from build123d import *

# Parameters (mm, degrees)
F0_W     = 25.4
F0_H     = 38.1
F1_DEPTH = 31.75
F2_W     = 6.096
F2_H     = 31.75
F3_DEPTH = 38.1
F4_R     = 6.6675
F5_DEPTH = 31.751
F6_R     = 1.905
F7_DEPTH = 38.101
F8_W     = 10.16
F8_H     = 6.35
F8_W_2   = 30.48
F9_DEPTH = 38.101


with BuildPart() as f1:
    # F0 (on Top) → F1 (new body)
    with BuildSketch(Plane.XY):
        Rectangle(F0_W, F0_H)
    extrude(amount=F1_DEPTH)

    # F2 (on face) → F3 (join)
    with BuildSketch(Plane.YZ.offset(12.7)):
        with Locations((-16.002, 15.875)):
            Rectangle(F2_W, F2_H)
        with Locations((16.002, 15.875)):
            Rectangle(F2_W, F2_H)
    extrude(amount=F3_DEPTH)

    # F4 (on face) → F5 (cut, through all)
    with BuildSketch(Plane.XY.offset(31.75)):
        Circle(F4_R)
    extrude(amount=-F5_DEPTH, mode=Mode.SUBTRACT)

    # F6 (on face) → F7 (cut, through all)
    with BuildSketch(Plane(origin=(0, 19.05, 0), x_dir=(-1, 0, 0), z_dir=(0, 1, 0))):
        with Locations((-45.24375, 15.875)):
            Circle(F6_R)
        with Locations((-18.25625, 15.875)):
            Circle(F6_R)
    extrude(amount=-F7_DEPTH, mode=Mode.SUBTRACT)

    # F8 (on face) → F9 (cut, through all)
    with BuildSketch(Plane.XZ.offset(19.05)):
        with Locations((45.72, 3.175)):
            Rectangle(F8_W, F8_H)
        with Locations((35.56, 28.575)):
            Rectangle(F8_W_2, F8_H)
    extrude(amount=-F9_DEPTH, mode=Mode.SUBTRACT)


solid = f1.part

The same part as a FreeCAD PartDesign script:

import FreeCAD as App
import Part
import Sketcher
from FreeCAD import Vector
Q = App.Units.Quantity

doc = App.newDocument("Part")
body = doc.addObject("PartDesign::Body", "Body")

sketch1 = body.newObject("Sketcher::SketchObject", "Sketch")
sketch1.AttachmentSupport = (doc.getObject("XY_Plane"), [""])
sketch1.MapMode = "FlatFace"
sketch1.addGeometry([
    Part.LineSegment(Vector(-13, 19, 0), Vector(-13, -19, 0)),
    Part.LineSegment(Vector(-13, -19, 0), Vector(13, -19, 0)),
    Part.LineSegment(Vector(13, -19, 0), Vector(13, 19, 0)),
    Part.LineSegment(Vector(13, 19, 0), Vector(-13, 19, 0)),
], False)
sketch1.addConstraint([
    Sketcher.Constraint("Coincident", 0, 2, 1, 1),
    Sketcher.Constraint("Coincident", 1, 2, 2, 1),
    Sketcher.Constraint("Coincident", 2, 2, 3, 1),
    Sketcher.Constraint("Coincident", 3, 2, 0, 1),
    Sketcher.Constraint("Vertical", 0),
    Sketcher.Constraint("Horizontal", 1),
    Sketcher.Constraint("Vertical", 2),
    Sketcher.Constraint("Horizontal", 3),
    Sketcher.Constraint("Symmetric", 0, 2, 2, 2, -1, 1),
    Sketcher.Constraint("DistanceX", 1, 1, 1, 2, Q("1 in")),
    Sketcher.Constraint("DistanceY", 0, 2, 0, 1, Q("1.5 in")),
])
pad1 = body.newObject("PartDesign::Pad", "Pad")
pad1.Profile = sketch1
pad1.Length = Q("1.25 in")

sketch2 = body.newObject("Sketcher::SketchObject", "Sketch001")
sketch2.AttachmentSupport = (doc.getObject("YZ_Plane"), [""])
sketch2.MapMode = "FlatFace"
sketch2.AttachmentOffset = App.Placement(Vector(0, 0, 0.5 * 25.4), App.Rotation())
sketch2.addGeometry([
    Part.LineSegment(Vector(-19, 32, 0), Vector(-19, 0, 0)),
    Part.LineSegment(Vector(-19, 0, 0), Vector(-13, 0, 0)),
    Part.LineSegment(Vector(-13, 0, 0), Vector(-13, 32, 0)),
    Part.LineSegment(Vector(-13, 32, 0), Vector(-19, 32, 0)),
    Part.LineSegment(Vector(13, 32, 0), Vector(13, 0, 0)),
    Part.LineSegment(Vector(13, 0, 0), Vector(19, 0, 0)),
    Part.LineSegment(Vector(19, 0, 0), Vector(19, 32, 0)),
    Part.LineSegment(Vector(19, 32, 0), Vector(13, 32, 0)),
], False)
sketch2.addConstraint([
    Sketcher.Constraint("Coincident", 0, 2, 1, 1),
    Sketcher.Constraint("Coincident", 1, 2, 2, 1),
    Sketcher.Constraint("Coincident", 2, 2, 3, 1),
    Sketcher.Constraint("Coincident", 3, 2, 0, 1),
    Sketcher.Constraint("Coincident", 4, 2, 5, 1),
    Sketcher.Constraint("Coincident", 5, 2, 6, 1),
    Sketcher.Constraint("Coincident", 6, 2, 7, 1),
    Sketcher.Constraint("Coincident", 7, 2, 4, 1),
    Sketcher.Constraint("Vertical", 0),
    Sketcher.Constraint("Horizontal", 1),
    Sketcher.Constraint("Vertical", 2),
    Sketcher.Constraint("Horizontal", 3),
    Sketcher.Constraint("Vertical", 4),
    Sketcher.Constraint("Horizontal", 5),
    Sketcher.Constraint("Vertical", 6),
    Sketcher.Constraint("Horizontal", 7),
    Sketcher.Constraint("Symmetric", 1, 2, 4, 2, -1, 1),
    Sketcher.Constraint("Symmetric", 0, 2, 5, 2, -2),
    Sketcher.Constraint("Horizontal", 3, 2, 6, 2),
    Sketcher.Constraint("DistanceX", 1, 1, 1, 2, Q("0.24 in")),
    Sketcher.Constraint("DistanceY", 0, 2, 0, 1, Q("1.25 in")),
    Sketcher.Constraint("DistanceX", 0, 2, 5, 2, Q("1.5 in")),
])
pad2 = body.newObject("PartDesign::Pad", "Pad001")
pad2.Profile = sketch2
pad2.Length = Q("1.5 in")

sketch3 = body.newObject("Sketcher::SketchObject", "Sketch002")
sketch3.AttachmentSupport = (doc.getObject("XY_Plane"), [""])
sketch3.MapMode = "FlatFace"
sketch3.AttachmentOffset = App.Placement(Vector(0, 0, 1.25 * 25.4), App.Rotation())
sketch3.addGeometry(Part.Circle(Vector(0, 0, 0), Vector(0, 0, 1), 7), False)
sketch3.addConstraint([
    Sketcher.Constraint("Coincident", 0, 3, -1, 1),
    Sketcher.Constraint("Diameter", 0, Q("0.525 in")),
])
pocket1 = body.newObject("PartDesign::Pocket", "Pocket")
pocket1.Profile = sketch3
pocket1.Type = "ThroughAll"

sketch4 = body.newObject("Sketcher::SketchObject", "Sketch003")
sketch4.AttachmentSupport = (doc.getObject("XZ_Plane"), [""])
sketch4.MapMode = "FlatFace"
sketch4.AttachmentOffset = App.Placement(Vector(0, 0, -0.75 * 25.4), App.Rotation())
sketch4.addGeometry([
    Part.Circle(Vector(45.2, 15.9, 0), Vector(0, 0, 1), 1.9),
    Part.Circle(Vector(18.3, 15.9, 0), Vector(0, 0, 1), 1.9),
], False)
sketch4.addConstraint([
    Sketcher.Constraint("Equal", 0, 1),
    Sketcher.Constraint("Horizontal", 0, 3, 1, 3),
    Sketcher.Constraint("Diameter", 0, Q("0.15 in")),
    Sketcher.Constraint("DistanceX", -1, 1, 0, 3, Q("1.78125 in")),
    Sketcher.Constraint("DistanceY", -1, 1, 0, 3, Q("0.625 in")),
    Sketcher.Constraint("DistanceX", -1, 1, 1, 3, Q("0.71875 in")),
])
pocket2 = body.newObject("PartDesign::Pocket", "Pocket001")
pocket2.Profile = sketch4
pocket2.Type = "ThroughAll"
pocket2.Reversed = True

sketch5 = body.newObject("Sketcher::SketchObject", "Sketch004")
sketch5.AttachmentSupport = (doc.getObject("XZ_Plane"), [""])
sketch5.MapMode = "FlatFace"
sketch5.AttachmentOffset = App.Placement(Vector(0, 0, 0.75 * 25.4), App.Rotation())
sketch5.addGeometry([
    Part.LineSegment(Vector(41, 6, 0), Vector(41, 0, 0)),
    Part.LineSegment(Vector(41, 0, 0), Vector(51, 0, 0)),
    Part.LineSegment(Vector(51, 0, 0), Vector(51, 6, 0)),
    Part.LineSegment(Vector(51, 6, 0), Vector(41, 6, 0)),
    Part.LineSegment(Vector(20, 32, 0), Vector(20, 25, 0)),
    Part.LineSegment(Vector(20, 25, 0), Vector(51, 25, 0)),
    Part.LineSegment(Vector(51, 25, 0), Vector(51, 32, 0)),
    Part.LineSegment(Vector(51, 32, 0), Vector(20, 32, 0)),
], False)
sketch5.addConstraint([
    Sketcher.Constraint("Coincident", 0, 2, 1, 1),
    Sketcher.Constraint("Coincident", 1, 2, 2, 1),
    Sketcher.Constraint("Coincident", 2, 2, 3, 1),
    Sketcher.Constraint("Coincident", 3, 2, 0, 1),
    Sketcher.Constraint("Coincident", 4, 2, 5, 1),
    Sketcher.Constraint("Coincident", 5, 2, 6, 1),
    Sketcher.Constraint("Coincident", 6, 2, 7, 1),
    Sketcher.Constraint("Coincident", 7, 2, 4, 1),
    Sketcher.Constraint("Vertical", 0),
    Sketcher.Constraint("Horizontal", 1),
    Sketcher.Constraint("Vertical", 2),
    Sketcher.Constraint("Horizontal", 3),
    Sketcher.Constraint("Vertical", 4),
    Sketcher.Constraint("Horizontal", 5),
    Sketcher.Constraint("Vertical", 6),
    Sketcher.Constraint("Horizontal", 7),
    Sketcher.Constraint("PointOnObject", 0, 2, -1),
    Sketcher.Constraint("Vertical", 2, 2, 5, 2),
    Sketcher.Constraint("Equal", 2, 4),
    Sketcher.Constraint("DistanceX", 1, 1, 1, 2, Q("0.4 in")),
    Sketcher.Constraint("DistanceX", 5, 1, 5, 2, Q("1.2 in")),
    Sketcher.Constraint("DistanceX", -1, 1, 1, 2, Q("2 in")),
    Sketcher.Constraint("DistanceY", -1, 1, 4, 2, Q("1 in")),
    Sketcher.Constraint("DistanceY", 0, 2, 0, 1, Q("0.25 in")),
])
pocket3 = body.newObject("PartDesign::Pocket", "Pocket002")
pocket3.Profile = sketch5
pocket3.Type = "ThroughAll"

doc.recompute()
